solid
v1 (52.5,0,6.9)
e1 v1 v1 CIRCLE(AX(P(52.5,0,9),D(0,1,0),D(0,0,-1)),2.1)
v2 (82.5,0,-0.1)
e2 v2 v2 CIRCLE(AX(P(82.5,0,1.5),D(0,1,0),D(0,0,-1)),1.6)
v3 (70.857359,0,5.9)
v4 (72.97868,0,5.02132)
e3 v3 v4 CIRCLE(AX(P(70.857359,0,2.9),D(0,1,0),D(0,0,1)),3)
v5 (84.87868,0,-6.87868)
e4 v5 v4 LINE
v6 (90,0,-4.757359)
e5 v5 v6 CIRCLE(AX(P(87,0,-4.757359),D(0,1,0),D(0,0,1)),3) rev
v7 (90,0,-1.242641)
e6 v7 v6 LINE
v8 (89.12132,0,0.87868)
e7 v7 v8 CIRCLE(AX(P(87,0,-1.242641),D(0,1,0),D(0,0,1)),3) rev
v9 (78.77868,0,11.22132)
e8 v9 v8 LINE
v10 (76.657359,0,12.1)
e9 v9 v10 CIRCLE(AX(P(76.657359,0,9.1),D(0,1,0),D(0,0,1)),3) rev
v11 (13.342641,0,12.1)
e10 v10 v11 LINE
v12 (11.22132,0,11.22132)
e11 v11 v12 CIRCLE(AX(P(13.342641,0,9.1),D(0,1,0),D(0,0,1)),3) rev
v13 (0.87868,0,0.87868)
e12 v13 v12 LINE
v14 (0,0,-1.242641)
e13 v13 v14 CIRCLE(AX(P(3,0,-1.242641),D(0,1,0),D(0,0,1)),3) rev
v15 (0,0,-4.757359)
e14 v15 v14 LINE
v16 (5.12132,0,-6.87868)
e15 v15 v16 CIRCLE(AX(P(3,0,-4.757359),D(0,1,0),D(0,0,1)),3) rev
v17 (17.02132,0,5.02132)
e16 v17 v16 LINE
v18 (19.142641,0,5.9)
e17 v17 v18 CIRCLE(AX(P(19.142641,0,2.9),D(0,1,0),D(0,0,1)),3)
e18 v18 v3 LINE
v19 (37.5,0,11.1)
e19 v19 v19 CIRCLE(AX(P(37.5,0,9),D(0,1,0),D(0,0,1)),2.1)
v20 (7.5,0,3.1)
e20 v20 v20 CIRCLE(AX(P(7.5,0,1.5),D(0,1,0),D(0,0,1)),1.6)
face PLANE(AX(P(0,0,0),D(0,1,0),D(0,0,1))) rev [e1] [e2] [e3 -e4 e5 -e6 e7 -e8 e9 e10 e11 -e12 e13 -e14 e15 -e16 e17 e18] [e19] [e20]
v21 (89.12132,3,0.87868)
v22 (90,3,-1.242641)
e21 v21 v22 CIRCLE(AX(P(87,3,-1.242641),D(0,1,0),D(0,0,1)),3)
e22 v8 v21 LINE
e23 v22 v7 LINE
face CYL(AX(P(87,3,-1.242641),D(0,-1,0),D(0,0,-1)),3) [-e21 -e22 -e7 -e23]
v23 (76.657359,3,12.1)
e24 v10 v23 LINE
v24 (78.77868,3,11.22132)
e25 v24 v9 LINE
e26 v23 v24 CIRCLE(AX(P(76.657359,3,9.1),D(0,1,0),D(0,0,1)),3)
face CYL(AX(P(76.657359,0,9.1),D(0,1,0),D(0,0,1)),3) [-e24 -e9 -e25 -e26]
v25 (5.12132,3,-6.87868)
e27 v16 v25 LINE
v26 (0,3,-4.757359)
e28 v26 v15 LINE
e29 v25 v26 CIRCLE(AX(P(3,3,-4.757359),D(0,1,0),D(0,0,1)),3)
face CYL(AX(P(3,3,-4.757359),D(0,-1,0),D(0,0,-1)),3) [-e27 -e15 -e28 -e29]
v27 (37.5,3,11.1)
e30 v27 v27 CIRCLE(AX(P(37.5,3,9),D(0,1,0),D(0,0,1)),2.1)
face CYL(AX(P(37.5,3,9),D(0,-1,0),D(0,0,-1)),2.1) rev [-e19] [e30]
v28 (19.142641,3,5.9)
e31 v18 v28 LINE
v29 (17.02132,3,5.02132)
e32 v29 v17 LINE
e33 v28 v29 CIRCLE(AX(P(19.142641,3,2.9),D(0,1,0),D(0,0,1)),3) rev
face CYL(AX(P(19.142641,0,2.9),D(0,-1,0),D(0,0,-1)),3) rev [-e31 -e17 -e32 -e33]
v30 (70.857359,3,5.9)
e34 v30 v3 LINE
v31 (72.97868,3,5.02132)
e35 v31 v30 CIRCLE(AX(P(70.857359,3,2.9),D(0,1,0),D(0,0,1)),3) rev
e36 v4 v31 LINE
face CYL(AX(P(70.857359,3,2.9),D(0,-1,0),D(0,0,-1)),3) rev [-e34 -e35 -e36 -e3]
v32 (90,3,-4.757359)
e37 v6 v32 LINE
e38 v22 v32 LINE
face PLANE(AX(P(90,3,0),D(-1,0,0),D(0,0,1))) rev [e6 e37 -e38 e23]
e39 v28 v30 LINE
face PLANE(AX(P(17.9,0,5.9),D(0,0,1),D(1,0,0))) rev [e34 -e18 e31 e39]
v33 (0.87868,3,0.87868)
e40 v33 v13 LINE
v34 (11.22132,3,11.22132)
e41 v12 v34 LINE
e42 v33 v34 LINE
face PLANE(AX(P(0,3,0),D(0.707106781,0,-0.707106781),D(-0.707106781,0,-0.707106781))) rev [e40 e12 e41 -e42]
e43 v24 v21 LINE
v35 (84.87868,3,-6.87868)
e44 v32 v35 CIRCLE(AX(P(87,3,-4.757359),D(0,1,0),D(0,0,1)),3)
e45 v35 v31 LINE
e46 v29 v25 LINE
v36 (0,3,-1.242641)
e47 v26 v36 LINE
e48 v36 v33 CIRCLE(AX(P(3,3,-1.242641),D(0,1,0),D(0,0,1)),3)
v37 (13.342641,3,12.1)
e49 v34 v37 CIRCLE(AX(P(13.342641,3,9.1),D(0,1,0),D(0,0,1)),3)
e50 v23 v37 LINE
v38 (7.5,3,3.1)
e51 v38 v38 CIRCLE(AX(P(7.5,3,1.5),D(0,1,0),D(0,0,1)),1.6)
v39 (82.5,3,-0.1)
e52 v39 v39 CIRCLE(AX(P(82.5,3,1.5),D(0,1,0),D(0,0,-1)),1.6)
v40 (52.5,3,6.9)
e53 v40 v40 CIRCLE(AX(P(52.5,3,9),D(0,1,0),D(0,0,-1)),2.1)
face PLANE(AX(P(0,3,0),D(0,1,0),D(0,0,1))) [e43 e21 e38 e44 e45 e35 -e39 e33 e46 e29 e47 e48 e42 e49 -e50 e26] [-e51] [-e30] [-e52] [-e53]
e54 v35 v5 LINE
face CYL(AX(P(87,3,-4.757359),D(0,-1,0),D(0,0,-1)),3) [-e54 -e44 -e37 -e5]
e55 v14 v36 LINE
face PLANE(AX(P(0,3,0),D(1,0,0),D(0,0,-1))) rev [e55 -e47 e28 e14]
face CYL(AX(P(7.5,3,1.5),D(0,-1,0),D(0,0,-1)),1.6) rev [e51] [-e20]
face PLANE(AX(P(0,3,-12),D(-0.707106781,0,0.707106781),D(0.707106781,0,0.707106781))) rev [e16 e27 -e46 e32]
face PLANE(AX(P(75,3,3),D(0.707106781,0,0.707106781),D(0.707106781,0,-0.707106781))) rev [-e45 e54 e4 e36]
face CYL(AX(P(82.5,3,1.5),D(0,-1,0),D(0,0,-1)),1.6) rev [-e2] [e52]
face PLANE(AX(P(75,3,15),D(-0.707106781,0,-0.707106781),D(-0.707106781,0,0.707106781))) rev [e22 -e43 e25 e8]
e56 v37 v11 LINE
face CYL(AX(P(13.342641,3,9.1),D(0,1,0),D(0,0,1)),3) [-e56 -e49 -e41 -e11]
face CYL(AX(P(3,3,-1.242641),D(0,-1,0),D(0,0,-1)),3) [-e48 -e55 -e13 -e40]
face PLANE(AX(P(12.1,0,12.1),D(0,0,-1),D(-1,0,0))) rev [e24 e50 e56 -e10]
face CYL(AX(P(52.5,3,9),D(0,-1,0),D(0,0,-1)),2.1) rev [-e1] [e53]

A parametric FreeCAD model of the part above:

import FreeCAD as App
import Part
import Sketcher
from FreeCAD import Vector
Q = App.Units.Quantity


def edges_at(feature, points):
    """Names of the edges that pass closest to the given points."""
    edges = feature.Shape.Edges
    near = lambda p: min(range(len(edges)), key=lambda i: edges[i].distToShape(Part.Vertex(*p))[0])
    return sorted({f"Edge{near(p) + 1}" for p in points})


def add_polygon(sketch, points):
    """Adds a closed chain of lines whose ends are joined by coincident constraints."""
    first, n = sketch.GeometryCount, len(points)
    for a, b in zip(points, points[1:] + points[:1]):
        sketch.addGeometry(Part.LineSegment(App.Vector(*a, 0), App.Vector(*b, 0)), False)
    for i in range(n):
        sketch.addConstraint(Sketcher.Constraint("Coincident", first + i, 2, first + (i + 1) % n, 1))

doc = App.newDocument("Part")
params = doc.addObject("Spreadsheet::Sheet", "Params")
for row, (alias, value) in enumerate([
    ("sketch1_diameter", "4.2 mm"),
    ("sketch1_diameter2", "3.2 mm"),
    ("sketch1_width", "60 mm"),
    ("sketch1_height", "12 mm"),
    ("pad1_length", "3 mm"),
    ("sketch2_width", "60 mm"),
    ("sketch2_width2", "54.2 mm"),
    ("fillet_radius", "3 mm"),
], start=1):
    params.set(f"A{row}", alias)
    params.set(f"B{row}", "=" + value)
    params.setAlias(f"B{row}", alias)

body = doc.addObject("PartDesign::Body", "Body")

# Sketch on XZ plane
sketch1 = body.newObject("Sketcher::SketchObject", "Sketch")
sketch1.AttachmentSupport = (doc.getObject("XZ_Plane"), [""])
sketch1.MapMode = "FlatFace"
add_polygon(sketch1, [(0, -12), (0, 0), (15, 15), (75, 15), (90, 0), (90, -12), (75, 3), (15, 3)])  # lines 0-7
sketch1.addGeometry(Part.Circle(Vector(52.5, 9, 0), Vector(0, 0, 1), 2.1), False)  # 8
sketch1.addGeometry(Part.Circle(Vector(37.5, 9, 0), Vector(0, 0, 1), 2.1), False)  # 9
sketch1.addGeometry(Part.Circle(Vector(82.5, 1.5, 0), Vector(0, 0, 1), 1.6), False)  # 10
sketch1.addGeometry(Part.Circle(Vector(7.5, 1.5, 0), Vector(0, 0, 1), 1.6), False)  # 11
sketch1.addConstraint(Sketcher.Constraint("Vertical", 0))
sketch1.addConstraint(Sketcher.Constraint("Horizontal", 2))
sketch1.addConstraint(Sketcher.Constraint("Vertical", 4))
sketch1.addConstraint(Sketcher.Constraint("Horizontal", 6))
sketch1.addConstraint(Sketcher.Constraint("Coincident", 0, 2, -1, 1))
sketch1.addConstraint(Sketcher.Constraint("Equal", 8, 9))
sketch1.addConstraint(Sketcher.Constraint("Equal", 10, 11))
sketch1.addConstraint(Sketcher.Constraint("PointOnObject", 3, 2, -1))
sketch1.addConstraint(Sketcher.Constraint("Perpendicular", 1, 3))
sketch1.addConstraint(Sketcher.Constraint("Parallel", 3, 5))
sketch1.addConstraint(Sketcher.Constraint("Perpendicular", 5, 7))
sketch1.addConstraint(Sketcher.Constraint("Horizontal", 8, 3, 9, 3))
sketch1.addConstraint(Sketcher.Constraint("Horizontal", 10, 3, 11, 3))
sketch1.addConstraint(Sketcher.Constraint("Horizontal", 4, 2, 7, 2))
sketch1.addConstraint(Sketcher.Constraint("Vertical", 2, 2, 5, 2))
sketch1.addConstraint(Sketcher.Constraint("Equal", 1, 3))
sketch1.addConstraint(Sketcher.Constraint("Diameter", 8, Q("4.2 mm")))
sketch1.addConstraint(Sketcher.Constraint("Diameter", 10, Q("3.2 mm")))
sketch1.addConstraint(Sketcher.Constraint("DistanceX", 2, 1, 2, 2, Q("60 mm")))
sketch1.addConstraint(Sketcher.Constraint("DistanceY", 0, 1, 0, 2, Q("12 mm")))
sketch1.addConstraint(Sketcher.Constraint("DistanceY", -1, 1, 8, 3, Q("9 mm")))
sketch1.addConstraint(Sketcher.Constraint("DistanceX", -1, 1, 1, 2, Q("15 mm")))
sketch1.addConstraint(Sketcher.Constraint("DistanceX", 9, 3, 8, 3, Q("15 mm")))
sketch1.addConstraint(Sketcher.Constraint("DistanceX", 8, 3, 10, 3, Q("30 mm")))
sketch1.addConstraint(Sketcher.Constraint("DistanceX", 11, 3, 9, 3, Q("30 mm")))
sketch1.addConstraint(Sketcher.Constraint("DistanceX", -1, 1, 8, 3, Q("52.5 mm")))
sketch1.addConstraint(Sketcher.Constraint("DistanceY", -1, 1, 10, 3, Q("1.5 mm")))
sketch1.setExpression("Constraints[24]", "Params.sketch1_diameter")
sketch1.setExpression("Constraints[25]", "Params.sketch1_diameter2")
sketch1.setExpression("Constraints[26]", "Params.sketch1_width")
sketch1.setExpression("Constraints[27]", "Params.sketch1_height")
pad1 = body.newObject("PartDesign::Pad", "Pad")
pad1.Profile = sketch1
pad1.setExpression("Length", "Params.pad1_length")
pad1.Reversed = True

# Sketch on XZ plane
sketch2 = body.newObject("Sketcher::SketchObject", "Sketch001")
sketch2.AttachmentSupport = (doc.getObject("XZ_Plane"), [""])
sketch2.MapMode = "FlatFace"
sketch2.AttachmentOffset = App.Placement(Vector(0, 0, -3), App.Rotation())
add_polygon(sketch2, [(15, 3), (17.9, 5.9), (72.1, 5.9), (75, 3)])  # lines 0-3
add_polygon(sketch2, [(77.9, 12.1), (12.1, 12.1), (15, 15), (75, 15)])  # lines 4-7
sketch2.addConstraint(Sketcher.Constraint("Horizontal", 1))
sketch2.addConstraint(Sketcher.Constraint("Horizontal", 3))
sketch2.addConstraint(Sketcher.Constraint("Horizontal", 4))
sketch2.addConstraint(Sketcher.Constraint("Horizontal", 6))
sketch2.addConstraint(Sketcher.Constraint("Perpendicular", 0, 2))
sketch2.addConstraint(Sketcher.Constraint("Perpendicular", 2, 5))
sketch2.addConstraint(Sketcher.Constraint("Perpendicular", 5, 7))
sketch2.addConstraint(Sketcher.Constraint("Vertical", 3, 2, 5, 2))
sketch2.addConstraint(Sketcher.Constraint("Vertical", 2, 2, 6, 2))
sketch2.addConstraint(Sketcher.Constraint("Equal", 0, 2))
sketch2.addConstraint(Sketcher.Constraint("Equal", 2, 5))
sketch2.addConstraint(Sketcher.Constraint("DistanceX", 3, 2, 3, 1, Q("60 mm")))
sketch2.addConstraint(Sketcher.Constraint("DistanceX", 1, 1, 1, 2, Q("54.2 mm")))
sketch2.addConstraint(Sketcher.Constraint("DistanceX", -1, 1, 2, 2, Q("75 mm")))
sketch2.addConstraint(Sketcher.Constraint("DistanceY", -1, 1, 2, 2, Q("3 mm")))
sketch2.addConstraint(Sketcher.Constraint("DistanceY", -1, 1, 5, 2, Q("15 mm")))
sketch2.setExpression("Constraints[19]", "Params.sketch2_width")
sketch2.setExpression("Constraints[20]", "Params.sketch2_width2")
pocket1 = body.newObject("PartDesign::Pocket", "Pocket")
pocket1.Profile = sketch2
pocket1.Type = "ThroughAll"
pocket1.Reversed = True
doc.recompute()

fillet = body.newObject("PartDesign::Fillet", "Fillet")
fillet.Base = (pocket1, edges_at(pocket1, [
    (0, 1.5, 0),
    (0, 1.5, -12),
    (90, 1.5, -12),
    (90, 1.5, 0),
    (72.1, 1.5, 5.9),
    (17.9, 1.5, 5.9),
    (12.1, 1.5, 12.1),
    (77.9, 1.5, 12.1),
]))
fillet.setExpression("Radius", "Params.fillet_radius")

doc.recompute()
